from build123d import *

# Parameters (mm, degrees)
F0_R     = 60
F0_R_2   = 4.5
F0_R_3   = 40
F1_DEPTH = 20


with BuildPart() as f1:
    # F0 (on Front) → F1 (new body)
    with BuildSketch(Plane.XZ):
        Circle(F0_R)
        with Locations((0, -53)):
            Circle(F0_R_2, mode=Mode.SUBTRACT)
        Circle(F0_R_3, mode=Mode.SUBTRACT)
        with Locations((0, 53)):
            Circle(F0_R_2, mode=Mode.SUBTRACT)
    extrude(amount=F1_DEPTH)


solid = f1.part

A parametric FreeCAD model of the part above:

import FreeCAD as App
import Part
import Sketcher
from FreeCAD import Vector

doc = App.newDocument("Part")
params = doc.addObject("Spreadsheet::Sheet", "Params")
for row, (alias, value) in enumerate([
    ("sketch1_diameter", "120 mm"),
    ("sketch1_diameter2", "9 mm"),
    ("sketch1_diameter3", "80 mm"),
    ("pad1_length", "20 mm"),
], start=1):
    params.set(f"A{row}", alias)
    params.set(f"B{row}", "=" + value)
    params.setAlias(f"B{row}", alias)

body = doc.addObject("PartDesign::Body", "Body")

# Sketch on XZ plane
sketch1 = doc.addObject("Sketcher::SketchObject", "Sketch")
body.addObject(sketch1)
sketch1.AttachmentSupport = (doc.XZ_Plane, [""])
sketch1.MapMode = "FlatFace"
sketch1.addGeometry(Part.Circle(Vector(0, 0, 0), Vector(0, 0, 1), 60), False)
sketch1.addGeometry(Part.Circle(Vector(0, -53, 0), Vector(0, 0, 1), 4.5), False)
sketch1.addGeometry(Part.Circle(Vector(0, 0, 0), Vector(0, 0, 1), 40), False)
sketch1.addGeometry(Part.Circle(Vector(0, 53, 0), Vector(0, 0, 1), 4.5), False)
sketch1.addConstraint(Sketcher.Constraint("Coincident", 0, 3, -1, 1))
sketch1.addConstraint(Sketcher.Constraint("Coincident", 2, 3, -1, 1))
sketch1.addConstraint(Sketcher.Constraint("Equal", 1, 3))
sketch1.addConstraint(Sketcher.Constraint("Symmetric", 1, 3, 3, 3, -1, 1))
sketch1.addConstraint(Sketcher.Constraint("PointOnObject", 1, 3, -2))
sketch1.addConstraint(Sketcher.Constraint("Diameter", 0, 120.0))
sketch1.addConstraint(Sketcher.Constraint("Diameter", 1, 9.0))
sketch1.addConstraint(Sketcher.Constraint("Diameter", 2, 80.0))
sketch1.addConstraint(Sketcher.Constraint("DistanceY", 1, 3, -1, 1, 53.0))
sketch1.setExpression("Constraints[5]", "Params.sketch1_diameter")
sketch1.setExpression("Constraints[6]", "Params.sketch1_diameter2")
sketch1.setExpression("Constraints[7]", "Params.sketch1_diameter3")
pad1 = doc.addObject("PartDesign::Pad", "Pad")
body.addObject(pad1)
pad1.Profile = sketch1
pad1.setExpression("Length", "Params.pad1_length")

doc.recompute()
